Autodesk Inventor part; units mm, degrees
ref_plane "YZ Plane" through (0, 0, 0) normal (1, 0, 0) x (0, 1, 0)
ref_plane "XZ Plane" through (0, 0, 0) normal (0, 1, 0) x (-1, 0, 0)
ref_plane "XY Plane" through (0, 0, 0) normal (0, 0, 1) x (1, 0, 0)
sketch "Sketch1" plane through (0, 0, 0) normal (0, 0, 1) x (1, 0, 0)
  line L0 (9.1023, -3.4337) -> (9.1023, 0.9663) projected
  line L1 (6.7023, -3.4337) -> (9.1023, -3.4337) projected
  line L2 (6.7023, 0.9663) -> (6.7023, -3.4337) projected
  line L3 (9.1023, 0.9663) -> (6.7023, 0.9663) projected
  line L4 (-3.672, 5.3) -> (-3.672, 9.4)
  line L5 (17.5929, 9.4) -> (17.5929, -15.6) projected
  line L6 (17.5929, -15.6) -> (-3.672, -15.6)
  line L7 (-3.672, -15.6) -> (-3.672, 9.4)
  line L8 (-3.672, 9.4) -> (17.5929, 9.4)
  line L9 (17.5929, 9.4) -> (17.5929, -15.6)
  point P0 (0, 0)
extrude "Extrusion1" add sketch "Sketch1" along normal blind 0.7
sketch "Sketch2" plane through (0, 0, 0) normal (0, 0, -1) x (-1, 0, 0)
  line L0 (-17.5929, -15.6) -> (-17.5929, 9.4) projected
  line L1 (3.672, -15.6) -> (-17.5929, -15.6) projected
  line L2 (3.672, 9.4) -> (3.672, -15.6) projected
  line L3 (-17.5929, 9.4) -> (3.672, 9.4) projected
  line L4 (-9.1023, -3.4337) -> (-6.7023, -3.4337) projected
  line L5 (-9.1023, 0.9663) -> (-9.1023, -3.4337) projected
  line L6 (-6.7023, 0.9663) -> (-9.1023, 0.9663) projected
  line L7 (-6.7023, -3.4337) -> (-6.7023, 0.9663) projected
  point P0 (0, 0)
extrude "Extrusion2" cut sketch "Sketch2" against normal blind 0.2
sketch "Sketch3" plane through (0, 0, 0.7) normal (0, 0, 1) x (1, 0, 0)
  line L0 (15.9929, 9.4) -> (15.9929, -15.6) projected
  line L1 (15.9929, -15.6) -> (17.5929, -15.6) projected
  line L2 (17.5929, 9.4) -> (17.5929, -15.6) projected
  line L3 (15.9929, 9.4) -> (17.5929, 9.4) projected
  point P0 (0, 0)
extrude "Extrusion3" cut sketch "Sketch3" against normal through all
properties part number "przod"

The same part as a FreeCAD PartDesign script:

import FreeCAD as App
import Part
import Sketcher

V = App.Vector


def add_polygon(sketch, points):
    """Adds a closed chain of lines whose ends are joined by coincident constraints."""
    first, n = sketch.GeometryCount, len(points)
    for a, b in zip(points, points[1:] + points[:1]):
        sketch.addGeometry(Part.LineSegment(App.Vector(*a, 0), App.Vector(*b, 0)), False)
    for i in range(n):
        sketch.addConstraint(Sketcher.Constraint("Coincident", first + i, 2, first + (i + 1) % n, 1))

doc = App.newDocument("Part")
params = doc.addObject("Spreadsheet::Sheet", "Params")
for row, (alias, value) in enumerate([
    ("sketch1_height", "25 mm"),
    ("sketch1_width", "2.4 mm"),
    ("sketch1_height2", "4.4 mm"),
    ("pad1_length", "0.7 mm"),
    ("sketch2_height", "25 mm"),
    ("sketch2_width", "2.4 mm"),
    ("sketch2_height2", "4.4 mm"),
    ("pocket1_length", "0.2 mm"),
    ("sketch3_height", "25 mm"),
    ("sketch3_width", "1.6 mm"),
], start=1):
    params.set(f"A{row}", alias)
    params.set(f"B{row}", "=" + value)
    params.setAlias(f"B{row}", alias)

body = doc.addObject("PartDesign::Body", "Body")

# Sketch on XY plane
sketch1 = doc.addObject("Sketcher::SketchObject", "Sketch")
body.addObject(sketch1)
sketch1.AttachmentSupport = (doc.XY_Plane, [""])
sketch1.MapMode = "FlatFace"
add_polygon(sketch1, [(-3.7, 9.4), (-3.7, -15.6), (17.6, -15.6), (17.6, 9.4)])  # lines 0-3
add_polygon(sketch1, [(9.1, 1), (9.1, -3.4), (6.7, -3.4), (6.7, 1)])  # lines 4-7
sketch1.addConstraint(Sketcher.Constraint("Vertical", 0))
sketch1.addConstraint(Sketcher.Constraint("Horizontal", 1))
sketch1.addConstraint(Sketcher.Constraint("Vertical", 2))
sketch1.addConstraint(Sketcher.Constraint("Horizontal", 3))
sketch1.addConstraint(Sketcher.Constraint("Vertical", 4))
sketch1.addConstraint(Sketcher.Constraint("Horizontal", 5))
sketch1.addConstraint(Sketcher.Constraint("Vertical", 6))
sketch1.addConstraint(Sketcher.Constraint("Horizontal", 7))
sketch1.addConstraint(Sketcher.Constraint("DistanceY", 0, 2, 0, 1, 25.0))
sketch1.addConstraint(Sketcher.Constraint("DistanceX", 5, 2, 5, 1, 2.4))
sketch1.addConstraint(Sketcher.Constraint("DistanceY", 4, 2, 4, 1, 4.4))
sketch1.addConstraint(Sketcher.Constraint("DistanceY", 0, 2, -1, 1, 15.6))
sketch1.addConstraint(Sketcher.Constraint("DistanceX", 1, 1, 1, 2, 21.265))
sketch1.addConstraint(Sketcher.Constraint("DistanceX", 0, 2, -1, 1, 3.672))
sketch1.addConstraint(Sketcher.Constraint("DistanceX", -1, 1, 4, 2, 9.1023))
sketch1.addConstraint(Sketcher.Constraint("DistanceY", 4, 2, -1, 1, 3.4337))
sketch1.setExpression("Constraints[16]", "Params.sketch1_height")
sketch1.setExpression("Constraints[17]", "Params.sketch1_width")
sketch1.setExpression("Constraints[18]", "Params.sketch1_height2")
pad1 = doc.addObject("PartDesign::Pad", "Pad")
body.addObject(pad1)
pad1.Profile = sketch1
pad1.setExpression("Length", "Params.pad1_length")

# Sketch on XY plane
sketch2 = doc.addObject("Sketcher::SketchObject", "Sketch001")
body.addObject(sketch2)
sketch2.AttachmentSupport = (doc.XY_Plane, [""])
sketch2.MapMode = "FlatFace"
add_polygon(sketch2, [(17.6, 9.4), (17.6, -15.6), (-3.7, -15.6), (-3.7, 9.4)])  # lines 0-3
add_polygon(sketch2, [(6.7, -3.4), (9.1, -3.4), (9.1, 1), (6.7, 1)])  # lines 4-7
sketch2.addConstraint(Sketcher.Constraint("Vertical", 0))
sketch2.addConstraint(Sketcher.Constraint("Horizontal", 1))
sketch2.addConstraint(Sketcher.Constraint("Vertical", 2))
sketch2.addConstraint(Sketcher.Constraint("Horizontal", 3))
sketch2.addConstraint(Sketcher.Constraint("Horizontal", 4))
sketch2.addConstraint(Sketcher.Constraint("Vertical", 5))
sketch2.addConstraint(Sketcher.Constraint("Horizontal", 6))
sketch2.addConstraint(Sketcher.Constraint("Vertical", 7))
sketch2.addConstraint(Sketcher.Constraint("DistanceY", 0, 2, 0, 1, 25.0))
sketch2.addConstraint(Sketcher.Constraint("DistanceX", 4, 1, 4, 2, 2.4))
sketch2.addConstraint(Sketcher.Constraint("DistanceY", 5, 1, 5, 2, 4.4))
sketch2.addConstraint(Sketcher.Constraint("DistanceY", 0, 2, -1, 1, 15.6))
sketch2.addConstraint(Sketcher.Constraint("DistanceX", 1, 2, 1, 1, 21.265))
sketch2.addConstraint(Sketcher.Constraint("DistanceX", -1, 1, 0, 2, 17.593))
sketch2.addConstraint(Sketcher.Constraint("DistanceX", -1, 1, 4, 2, 9.1023))
sketch2.addConstraint(Sketcher.Constraint("DistanceY", 4, 2, -1, 1, 3.4337))
sketch2.setExpression("Constraints[16]", "Params.sketch2_height")
sketch2.setExpression("Constraints[17]", "Params.sketch2_width")
sketch2.setExpression("Constraints[18]", "Params.sketch2_height2")
pocket1 = doc.addObject("PartDesign::Pocket", "Pocket")
body.addObject(pocket1)
pocket1.Profile = sketch2
pocket1.setExpression("Length", "Params.pocket1_length")
pocket1.Reversed = True

# Sketch on XY plane
sketch3 = doc.addObject("Sketcher::SketchObject", "Sketch002")
body.addObject(sketch3)
sketch3.AttachmentSupport = (doc.XY_Plane, [""])
sketch3.MapMode = "FlatFace"
sketch3.AttachmentOffset = App.Placement(V(0, 0, 0.7), App.Rotation())
add_polygon(sketch3, [(17.6, 9.4), (16, 9.4), (16, -15.6), (17.6, -15.6)])  # lines 0-3
sketch3.addConstraint(Sketcher.Constraint("Horizontal", 0))
sketch3.addConstraint(Sketcher.Constraint("Vertical", 1))
sketch3.addConstraint(Sketcher.Constraint("Horizontal", 2))
sketch3.addConstraint(Sketcher.Constraint("Vertical", 3))
sketch3.addConstraint(Sketcher.Constraint("DistanceY", 1, 2, 1, 1, 25.0))
sketch3.addConstraint(Sketcher.Constraint("DistanceX", 0, 2, 0, 1, 1.6))
sketch3.addConstraint(Sketcher.Constraint("DistanceY", -1, 1, 0, 2, 9.4))
sketch3.addConstraint(Sketcher.Constraint("DistanceX", -1, 1, 0, 2, 15.993))
sketch3.setExpression("Constraints[8]", "Params.sketch3_height")
sketch3.setExpression("Constraints[9]", "Params.sketch3_width")
pocket2 = doc.addObject("PartDesign::Pocket", "Pocket001")
body.addObject(pocket2)
pocket2.Profile = sketch3
pocket2.Type = "ThroughAll"

doc.recompute()
